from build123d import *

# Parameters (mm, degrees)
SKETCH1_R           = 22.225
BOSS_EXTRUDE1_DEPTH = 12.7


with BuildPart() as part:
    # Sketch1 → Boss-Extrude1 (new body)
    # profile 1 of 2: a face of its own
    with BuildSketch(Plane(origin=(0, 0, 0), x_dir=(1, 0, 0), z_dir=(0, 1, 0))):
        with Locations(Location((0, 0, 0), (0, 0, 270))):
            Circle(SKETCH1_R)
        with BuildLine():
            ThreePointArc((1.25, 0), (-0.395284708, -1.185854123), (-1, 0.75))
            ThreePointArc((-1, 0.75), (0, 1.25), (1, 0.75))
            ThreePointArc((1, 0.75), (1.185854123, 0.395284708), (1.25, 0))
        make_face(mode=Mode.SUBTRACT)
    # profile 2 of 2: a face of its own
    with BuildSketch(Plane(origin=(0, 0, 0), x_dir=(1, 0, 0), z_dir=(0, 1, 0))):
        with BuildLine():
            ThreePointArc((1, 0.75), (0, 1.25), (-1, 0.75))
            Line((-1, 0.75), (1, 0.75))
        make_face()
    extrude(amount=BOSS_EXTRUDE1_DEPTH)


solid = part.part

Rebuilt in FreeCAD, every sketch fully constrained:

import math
import FreeCAD as App
import Part
import Sketcher
from FreeCAD import Vector

doc = App.newDocument("Part")
body = doc.addObject("PartDesign::Body", "Body")

sketch1 = body.newObject("Sketcher::SketchObject", "Sketch")
sketch1.AttachmentSupport = (doc.getObject("XZ_Plane"), [""])
sketch1.MapMode = "FlatFace"
sketch1.addGeometry([
    Part.Circle(Vector(0, 0, 0), Vector(0, 0, 1), 22.225),
    Part.ArcOfCircle(Part.Circle(Vector(0, 0, 0), Vector(0, 0, 1), 1.25), math.radians(-36.869898), math.radians(0)),
    Part.ArcOfCircle(Part.Circle(Vector(0, 0, 0), Vector(0, 0, 1), 1.25), math.radians(0), math.radians(216.869898)),
    Part.LineSegment(Vector(-1, -0.75, 0), Vector(1, -0.75, 0)),
], False)
sketch1.addConstraint([
    Sketcher.Constraint("Tangent", 1, 2, 2, 1),
    Sketcher.Constraint("Coincident", 2, 2, 3, 1),
    Sketcher.Constraint("Coincident", 3, 2, 1, 1),
    Sketcher.Constraint("Horizontal", 3),
    Sketcher.Constraint("Coincident", 0, 3, -1, 1),
    Sketcher.Constraint("Coincident", 1, 3, -1, 1),
    Sketcher.Constraint("Equal", 1, 2),
    Sketcher.Constraint("PointOnObject", 1, 2, -1),
    Sketcher.Constraint("Diameter", 0, 44.45),
    Sketcher.Constraint("DistanceX", 3, 1, 3, 2, 2.0),
    Sketcher.Constraint("Radius", 1, 1.25),
])
pad1 = body.newObject("PartDesign::Pad", "Pad")
pad1.Profile = sketch1
pad1.Length = 12.7
pad1.Reversed = True

doc.recompute()
